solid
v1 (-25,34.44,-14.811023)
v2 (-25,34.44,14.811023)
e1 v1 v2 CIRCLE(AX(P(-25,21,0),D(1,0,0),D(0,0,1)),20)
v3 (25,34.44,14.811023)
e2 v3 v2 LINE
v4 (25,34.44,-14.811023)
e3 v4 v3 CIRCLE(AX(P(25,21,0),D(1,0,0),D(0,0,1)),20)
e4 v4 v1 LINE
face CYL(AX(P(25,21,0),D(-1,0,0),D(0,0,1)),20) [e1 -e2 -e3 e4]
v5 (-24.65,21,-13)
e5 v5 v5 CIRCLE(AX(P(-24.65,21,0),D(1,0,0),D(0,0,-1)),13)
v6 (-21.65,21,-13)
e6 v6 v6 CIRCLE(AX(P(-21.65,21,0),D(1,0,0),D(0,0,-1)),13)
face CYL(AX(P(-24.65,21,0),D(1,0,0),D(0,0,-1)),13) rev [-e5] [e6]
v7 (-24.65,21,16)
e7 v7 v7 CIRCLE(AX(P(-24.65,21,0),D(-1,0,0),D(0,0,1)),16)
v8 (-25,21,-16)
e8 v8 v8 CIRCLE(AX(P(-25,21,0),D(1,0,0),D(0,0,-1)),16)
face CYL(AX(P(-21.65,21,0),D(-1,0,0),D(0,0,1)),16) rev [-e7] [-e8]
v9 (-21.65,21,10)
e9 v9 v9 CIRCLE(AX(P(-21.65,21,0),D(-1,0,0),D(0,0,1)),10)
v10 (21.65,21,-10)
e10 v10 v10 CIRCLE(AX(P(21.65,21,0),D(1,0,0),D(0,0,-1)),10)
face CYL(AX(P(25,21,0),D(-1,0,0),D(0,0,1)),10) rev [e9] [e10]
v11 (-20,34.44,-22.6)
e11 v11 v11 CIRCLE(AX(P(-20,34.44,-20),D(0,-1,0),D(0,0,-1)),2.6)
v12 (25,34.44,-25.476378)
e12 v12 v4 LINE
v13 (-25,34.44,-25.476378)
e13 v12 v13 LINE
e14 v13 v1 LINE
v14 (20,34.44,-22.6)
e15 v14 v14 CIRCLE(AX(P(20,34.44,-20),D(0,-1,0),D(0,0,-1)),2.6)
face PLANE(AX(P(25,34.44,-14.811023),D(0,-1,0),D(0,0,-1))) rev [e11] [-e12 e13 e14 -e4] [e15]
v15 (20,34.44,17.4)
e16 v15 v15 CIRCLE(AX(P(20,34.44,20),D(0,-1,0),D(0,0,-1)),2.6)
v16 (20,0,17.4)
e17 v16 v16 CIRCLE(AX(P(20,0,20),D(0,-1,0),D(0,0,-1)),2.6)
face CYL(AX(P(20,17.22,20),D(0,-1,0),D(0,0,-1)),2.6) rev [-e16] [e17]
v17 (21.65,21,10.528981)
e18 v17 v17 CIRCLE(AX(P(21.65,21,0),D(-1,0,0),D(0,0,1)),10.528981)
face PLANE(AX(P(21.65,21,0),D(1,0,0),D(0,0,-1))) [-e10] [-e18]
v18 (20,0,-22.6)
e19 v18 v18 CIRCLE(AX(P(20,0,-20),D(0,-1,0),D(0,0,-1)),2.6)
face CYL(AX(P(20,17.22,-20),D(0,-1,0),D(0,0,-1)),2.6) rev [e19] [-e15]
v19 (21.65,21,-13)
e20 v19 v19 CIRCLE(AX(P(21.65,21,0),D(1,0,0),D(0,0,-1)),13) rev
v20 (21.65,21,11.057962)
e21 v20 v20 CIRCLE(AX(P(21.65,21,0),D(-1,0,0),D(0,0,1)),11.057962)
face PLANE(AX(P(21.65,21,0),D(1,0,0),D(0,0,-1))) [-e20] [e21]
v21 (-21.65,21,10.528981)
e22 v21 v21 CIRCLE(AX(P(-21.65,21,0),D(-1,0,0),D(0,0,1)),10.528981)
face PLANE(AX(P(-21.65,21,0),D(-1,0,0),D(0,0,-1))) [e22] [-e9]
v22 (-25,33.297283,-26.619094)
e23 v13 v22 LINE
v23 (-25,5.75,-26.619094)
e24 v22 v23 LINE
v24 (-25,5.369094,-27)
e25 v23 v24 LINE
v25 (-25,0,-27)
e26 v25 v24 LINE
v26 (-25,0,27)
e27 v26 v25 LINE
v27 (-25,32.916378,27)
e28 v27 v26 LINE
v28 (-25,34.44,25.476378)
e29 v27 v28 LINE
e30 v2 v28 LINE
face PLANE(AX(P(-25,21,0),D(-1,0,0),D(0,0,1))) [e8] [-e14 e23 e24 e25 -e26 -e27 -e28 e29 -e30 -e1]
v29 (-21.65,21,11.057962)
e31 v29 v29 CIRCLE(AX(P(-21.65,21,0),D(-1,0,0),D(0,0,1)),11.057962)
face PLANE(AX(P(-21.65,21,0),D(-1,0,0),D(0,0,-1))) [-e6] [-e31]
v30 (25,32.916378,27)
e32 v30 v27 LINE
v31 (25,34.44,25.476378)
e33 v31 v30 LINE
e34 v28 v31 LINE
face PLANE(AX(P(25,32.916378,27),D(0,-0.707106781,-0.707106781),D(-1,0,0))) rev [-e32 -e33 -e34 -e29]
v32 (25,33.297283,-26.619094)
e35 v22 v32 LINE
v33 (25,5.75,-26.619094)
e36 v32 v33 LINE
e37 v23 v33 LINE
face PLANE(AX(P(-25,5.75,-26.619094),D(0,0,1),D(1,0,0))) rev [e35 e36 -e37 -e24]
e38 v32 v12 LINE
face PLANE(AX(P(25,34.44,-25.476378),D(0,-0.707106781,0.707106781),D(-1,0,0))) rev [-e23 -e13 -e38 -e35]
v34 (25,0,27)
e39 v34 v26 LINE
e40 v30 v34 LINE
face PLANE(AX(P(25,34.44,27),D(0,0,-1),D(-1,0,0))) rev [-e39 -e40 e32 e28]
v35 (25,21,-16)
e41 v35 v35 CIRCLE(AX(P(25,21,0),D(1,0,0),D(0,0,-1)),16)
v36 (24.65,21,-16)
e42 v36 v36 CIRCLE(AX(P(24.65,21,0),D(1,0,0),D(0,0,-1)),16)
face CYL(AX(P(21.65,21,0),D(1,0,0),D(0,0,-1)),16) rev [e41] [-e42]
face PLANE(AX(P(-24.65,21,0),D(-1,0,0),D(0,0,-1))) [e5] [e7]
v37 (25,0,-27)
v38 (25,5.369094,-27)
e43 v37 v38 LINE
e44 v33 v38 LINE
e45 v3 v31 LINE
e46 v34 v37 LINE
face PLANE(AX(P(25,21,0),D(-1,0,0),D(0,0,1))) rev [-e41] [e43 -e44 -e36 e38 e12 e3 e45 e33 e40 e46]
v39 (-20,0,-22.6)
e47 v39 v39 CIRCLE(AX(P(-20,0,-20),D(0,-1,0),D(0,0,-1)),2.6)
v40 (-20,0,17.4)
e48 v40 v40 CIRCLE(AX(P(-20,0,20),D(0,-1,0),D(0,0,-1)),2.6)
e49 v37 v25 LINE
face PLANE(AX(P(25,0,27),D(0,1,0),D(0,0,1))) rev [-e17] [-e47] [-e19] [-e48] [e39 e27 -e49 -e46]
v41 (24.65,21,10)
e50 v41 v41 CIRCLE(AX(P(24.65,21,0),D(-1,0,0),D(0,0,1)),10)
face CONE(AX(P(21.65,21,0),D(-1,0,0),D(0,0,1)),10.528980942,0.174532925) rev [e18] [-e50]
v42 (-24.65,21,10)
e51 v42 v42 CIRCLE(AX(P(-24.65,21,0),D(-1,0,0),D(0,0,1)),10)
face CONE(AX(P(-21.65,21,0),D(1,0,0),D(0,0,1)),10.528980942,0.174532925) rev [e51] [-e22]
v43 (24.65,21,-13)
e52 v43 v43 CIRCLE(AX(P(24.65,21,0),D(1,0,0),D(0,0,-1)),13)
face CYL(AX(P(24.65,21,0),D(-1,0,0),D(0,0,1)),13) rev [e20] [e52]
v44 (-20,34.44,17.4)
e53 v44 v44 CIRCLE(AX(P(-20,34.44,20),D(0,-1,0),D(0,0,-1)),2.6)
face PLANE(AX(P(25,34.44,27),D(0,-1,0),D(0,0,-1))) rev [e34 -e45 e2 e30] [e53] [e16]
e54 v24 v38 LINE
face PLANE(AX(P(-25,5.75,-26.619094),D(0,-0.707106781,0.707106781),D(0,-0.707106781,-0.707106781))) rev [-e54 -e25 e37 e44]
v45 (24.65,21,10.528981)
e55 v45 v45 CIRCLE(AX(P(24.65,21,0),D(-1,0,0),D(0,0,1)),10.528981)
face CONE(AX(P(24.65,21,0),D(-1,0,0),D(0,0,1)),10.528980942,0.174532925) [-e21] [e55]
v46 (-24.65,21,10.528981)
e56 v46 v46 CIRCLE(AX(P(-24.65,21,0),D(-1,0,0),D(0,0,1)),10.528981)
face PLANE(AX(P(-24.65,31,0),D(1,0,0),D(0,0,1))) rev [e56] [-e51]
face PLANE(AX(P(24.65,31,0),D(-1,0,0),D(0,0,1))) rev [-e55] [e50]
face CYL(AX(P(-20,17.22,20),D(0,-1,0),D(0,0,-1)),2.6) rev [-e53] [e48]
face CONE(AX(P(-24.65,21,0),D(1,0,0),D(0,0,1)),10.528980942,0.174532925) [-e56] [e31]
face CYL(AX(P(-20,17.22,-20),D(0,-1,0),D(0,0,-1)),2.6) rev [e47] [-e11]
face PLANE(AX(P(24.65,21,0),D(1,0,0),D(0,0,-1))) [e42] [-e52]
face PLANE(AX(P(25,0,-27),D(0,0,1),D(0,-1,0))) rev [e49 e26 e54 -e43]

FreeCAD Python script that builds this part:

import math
import FreeCAD as App
import Part
import Sketcher

V = App.Vector
Q = App.Units.Quantity


def edges_at(feature, points):
    """Names of the edges that pass closest to the given points."""
    edges = feature.Shape.Edges
    near = lambda p: min(range(len(edges)), key=lambda i: edges[i].distToShape(Part.Vertex(*p))[0])
    return sorted({f"Edge{near(p) + 1}" for p in points})


def add_polygon(sketch, points):
    """Adds a closed chain of lines whose ends are joined by coincident constraints."""
    first, n = sketch.GeometryCount, len(points)
    for a, b in zip(points, points[1:] + points[:1]):
        sketch.addGeometry(Part.LineSegment(App.Vector(*a, 0), App.Vector(*b, 0)), False)
    for i in range(n):
        sketch.addConstraint(Sketcher.Constraint("Coincident", first + i, 2, first + (i + 1) % n, 1))

doc = App.newDocument("Part")
body = doc.addObject("PartDesign::Body", "Body")

# Sketch on YZ plane
sketch1 = doc.addObject("Sketcher::SketchObject", "Sketch")
body.addObject(sketch1)
sketch1.AttachmentSupport = (doc.YZ_Plane, [""])
sketch1.MapMode = "FlatFace"
sketch1.addGeometry([
    Part.LineSegment(V(0, -27, 0), V(34.44, -27, 0)),  # 0
    Part.LineSegment(V(34.44, -27, 0), V(34.44, -14.811023, 0)),  # 1
    Part.ArcOfCircle(Part.Circle(V(21, 0, 0), V(0, 0, 1), 20), math.radians(-47.778386), math.radians(47.778386)),  # 2
    Part.LineSegment(V(34.44, 14.811023, 0), V(34.44, 27, 0)),  # 3
    Part.LineSegment(V(34.44, 27, 0), V(0, 27, 0)),  # 4
    Part.LineSegment(V(0, 27, 0), V(0, -27, 0)),  # 5
    Part.Circle(V(21, 0, 0), V(0, 0, 1), 10),  # 6
], False)
sketch1.addConstraint([
    Sketcher.Constraint("Coincident", 0, 2, 1, 1),
    Sketcher.Constraint("Coincident", 1, 2, 2, 1),
    Sketcher.Constraint("Coincident", 2, 2, 3, 1),
    Sketcher.Constraint("Coincident", 3, 2, 4, 1),
    Sketcher.Constraint("Coincident", 4, 2, 5, 1),
    Sketcher.Constraint("Coincident", 5, 2, 0, 1),
    Sketcher.Constraint("Horizontal", 0),
    Sketcher.Constraint("Vertical", 1),
    Sketcher.Constraint("Vertical", 3),
    Sketcher.Constraint("Horizontal", 4),
    Sketcher.Constraint("Vertical", 5),
    Sketcher.Constraint("Coincident", 6, 3, 2, 3),
    Sketcher.Constraint("Symmetric", 4, 2, 5, 2, -1, 1),
    Sketcher.Constraint("Symmetric", 1, 2, 2, 2, -1),
    Sketcher.Constraint("Diameter", 6, 20.0),
    Sketcher.Constraint("Radius", 2, 20.0),
    Sketcher.Constraint("DistanceY", 5, 2, 5, 1, 54.0),
    Sketcher.Constraint("DistanceX", -1, 1, 2, 3, 21.0),
    Sketcher.Constraint("DistanceX", 0, 1, 0, 2, 34.44),
])
pad1 = doc.addObject("PartDesign::Pad", "Pad")
body.addObject(pad1)
pad1.Profile = sketch1
pad1.Type = "TwoLengths"
pad1.Length = 25
pad1.Length2 = 25

# Sketch on YZ plane
sketch2 = doc.addObject("Sketcher::SketchObject", "Sketch001")
body.addObject(sketch2)
sketch2.AttachmentSupport = (doc.YZ_Plane, [""])
sketch2.MapMode = "FlatFace"
sketch2.AttachmentOffset = App.Placement(V(0, 0, 25), App.Rotation())
sketch2.addGeometry(Part.Circle(V(21, 0, 0), V(0, 0, 1), 16), False)
sketch2.addConstraint([
    Sketcher.Constraint("PointOnObject", 0, 3, -1),
    Sketcher.Constraint("Diameter", 0, 32.0),
    Sketcher.Constraint("DistanceX", -1, 1, 0, 3, 21.0),
])
pocket1 = doc.addObject("PartDesign::Pocket", "Pocket")
body.addObject(pocket1)
pocket1.Profile = sketch2
pocket1.Length = 3.35

# Sketch on YZ plane
sketch3 = doc.addObject("Sketcher::SketchObject", "Sketch002")
body.addObject(sketch3)
sketch3.AttachmentSupport = (doc.YZ_Plane, [""])
sketch3.MapMode = "FlatFace"
sketch3.AttachmentOffset = App.Placement(V(0, 0, 24.65), App.Rotation())
sketch3.addGeometry([
    Part.Circle(V(21, 0, 0), V(0, 0, 1), 16),
    Part.Circle(V(21, 0, 0), V(0, 0, 1), 13),
], False)
sketch3.addConstraint([
    Sketcher.Constraint("Coincident", 1, 3, 0, 3),
    Sketcher.Constraint("PointOnObject", 0, 3, -1),
    Sketcher.Constraint("Diameter", 0, 32.0),
    Sketcher.Constraint("Diameter", 1, 26.0),
    Sketcher.Constraint("DistanceX", -1, 1, 0, 3, 21.0),
])
pad2 = doc.addObject("PartDesign::Pad", "Pad001")
body.addObject(pad2)
pad2.Profile = sketch3
pad2.Length = 3
pad2.Reversed = True

# Sketch on XY plane
sketch4 = doc.addObject("Sketcher::SketchObject", "Sketch003")
body.addObject(sketch4)
sketch4.AttachmentSupport = (doc.XY_Plane, [""])
sketch4.MapMode = "FlatFace"
add_polygon(sketch4, [(24.65, 31), (24.65, 31.528981), (21.65, 32.057962), (21.65, 31.528981)])  # lines 0-3
sketch4.addGeometry(Part.LineSegment(V(21.65, 21, 0), V(24.65, 21, 0)), True)  # axis
sketch4.addConstraint([
    Sketcher.Constraint("Vertical", 0),
    Sketcher.Constraint("Vertical", 2),
    Sketcher.Constraint("Horizontal", 4),
    Sketcher.Constraint("Parallel", 1, 3),
    Sketcher.Constraint("Horizontal", 0, 2, 2, 2),
    Sketcher.Constraint("Vertical", 2, 2, 4, 1),
    Sketcher.Constraint("Vertical", 3, 2, 4, 2),
    Sketcher.Constraint("DistanceX", 4, 1, 4, 2, 3.0),
    Sketcher.Constraint("Angle", 1, Q("170 deg")),
    Sketcher.Constraint("DistanceY", -1, 1, 3, 2, 31.0),
    Sketcher.Constraint("DistanceY", -1, 1, 4, 1, 21.0),
    Sketcher.Constraint("DistanceX", -1, 1, 0, 2, 24.65),
])
revolution = doc.addObject("PartDesign::Revolution", "Revolution")
body.addObject(revolution)
revolution.Profile = sketch4
revolution.ReferenceAxis = (sketch4, ["Axis0"])
revolution.Angle = 360
doc.recompute()

mirrored = doc.addObject("PartDesign::Mirrored", "Mirrored")
body.addObject(mirrored)
mirrored.Originals = [pocket1, pad2, revolution]
mirrored.MirrorPlane = (doc.YZ_Plane, [""])
body.Tip = mirrored
doc.recompute()

chamfer = doc.addObject("PartDesign::Chamfer", "Chamfer")
body.addObject(chamfer)
chamfer.Base = (mirrored, edges_at(mirrored, [(0, 34.44, 27), (0, 34.44, -27)]))
chamfer.Size = 1.523622

# Sketch on YZ plane
sketch5 = doc.addObject("Sketcher::SketchObject", "Sketch004")
body.addObject(sketch5)
sketch5.AttachmentSupport = (doc.YZ_Plane, [""])
sketch5.MapMode = "FlatFace"
sketch5.AttachmentOffset = App.Placement(V(0, 0, 25), App.Rotation())
add_polygon(sketch5, [(5.75, -26.619094), (5.369094, -27), (32.916378, -27), (33.297283, -26.619094)])  # lines 0-3
sketch5.addConstraint([
    Sketcher.Constraint("Horizontal", 1),
    Sketcher.Constraint("Horizontal", 3),
    Sketcher.Constraint("Parallel", 0, 2),
    Sketcher.Constraint("Angle", 0, Q("-135 deg")),
    Sketcher.Constraint("DistanceY", 0, 2, -1, 1, 27.0),
    Sketcher.Constraint("DistanceX", -1, 1, 3, 2, 5.75),
    Sketcher.Constraint("Distance", 0, 0.538682),
    Sketcher.Constraint("DistanceX", 1, 1, 1, 2, 27.547283),
])
pocket2 = doc.addObject("PartDesign::Pocket", "Pocket001")
body.addObject(pocket2)
pocket2.Profile = sketch5
pocket2.Type = "ThroughAll"

# Sketch on XZ plane
sketch6 = doc.addObject("Sketcher::SketchObject", "Sketch005")
body.addObject(sketch6)
sketch6.AttachmentSupport = (doc.XZ_Plane, [""])
sketch6.MapMode = "FlatFace"
sketch6.addGeometry([
    Part.Circle(V(-20, 20, 0), V(0, 0, 1), 2.6),
    Part.Circle(V(20, 20, 0), V(0, 0, 1), 2.6),
    Part.Circle(V(20, -20, 0), V(0, 0, 1), 2.6),
    Part.Circle(V(-20, -20, 0), V(0, 0, 1), 2.6),
], False)
sketch6.addConstraint([
    Sketcher.Constraint("Equal", 0, 1),
    Sketcher.Constraint("Equal", 1, 2),
    Sketcher.Constraint("Equal", 2, 3),
    Sketcher.Constraint("Symmetric", 0, 3, 2, 3, -1, 1),
    Sketcher.Constraint("Symmetric", 1, 3, 3, 3, -1, 1),
    Sketcher.Constraint("Symmetric", 0, 3, 1, 3, -2),
    Sketcher.Constraint("Diameter", 0, 5.2),
    Sketcher.Constraint("DistanceX", 0, 3, -1, 1, 20.0),
    Sketcher.Constraint("DistanceY", -1, 1, 0, 3, 20.0),
])
pocket3 = doc.addObject("PartDesign::Pocket", "Pocket002")
body.addObject(pocket3)
pocket3.Profile = sketch6
pocket3.Length = 17.22

# Sketch on XZ plane
sketch7 = doc.addObject("Sketcher::SketchObject", "Sketch006")
body.addObject(sketch7)
sketch7.AttachmentSupport = (doc.XZ_Plane, [""])
sketch7.MapMode = "FlatFace"
sketch7.addGeometry([
    Part.Circle(V(-20, 20, 0), V(0, 0, 1), 2.6),
    Part.Circle(V(20, 20, 0), V(0, 0, 1), 2.6),
    Part.Circle(V(20, -20, 0), V(0, 0, 1), 2.6),
    Part.Circle(V(-20, -20, 0), V(0, 0, 1), 2.6),
], False)
sketch7.addConstraint([
    Sketcher.Constraint("Equal", 0, 1),
    Sketcher.Constraint("Equal", 1, 2),
    Sketcher.Constraint("Equal", 2, 3),
    Sketcher.Constraint("Symmetric", 0, 3, 2, 3, -1, 1),
    Sketcher.Constraint("Symmetric", 1, 3, 3, 3, -1, 1),
    Sketcher.Constraint("Symmetric", 0, 3, 1, 3, -2),
    Sketcher.Constraint("Diameter", 0, 5.2),
    Sketcher.Constraint("DistanceX", 0, 3, -1, 1, 20.0),
    Sketcher.Constraint("DistanceY", -1, 1, 0, 3, 20.0),
])
pocket4 = doc.addObject("PartDesign::Pocket", "Pocket003")
body.addObject(pocket4)
pocket4.Profile = sketch7
pocket4.Type = "ThroughAll"

doc.recompute()
